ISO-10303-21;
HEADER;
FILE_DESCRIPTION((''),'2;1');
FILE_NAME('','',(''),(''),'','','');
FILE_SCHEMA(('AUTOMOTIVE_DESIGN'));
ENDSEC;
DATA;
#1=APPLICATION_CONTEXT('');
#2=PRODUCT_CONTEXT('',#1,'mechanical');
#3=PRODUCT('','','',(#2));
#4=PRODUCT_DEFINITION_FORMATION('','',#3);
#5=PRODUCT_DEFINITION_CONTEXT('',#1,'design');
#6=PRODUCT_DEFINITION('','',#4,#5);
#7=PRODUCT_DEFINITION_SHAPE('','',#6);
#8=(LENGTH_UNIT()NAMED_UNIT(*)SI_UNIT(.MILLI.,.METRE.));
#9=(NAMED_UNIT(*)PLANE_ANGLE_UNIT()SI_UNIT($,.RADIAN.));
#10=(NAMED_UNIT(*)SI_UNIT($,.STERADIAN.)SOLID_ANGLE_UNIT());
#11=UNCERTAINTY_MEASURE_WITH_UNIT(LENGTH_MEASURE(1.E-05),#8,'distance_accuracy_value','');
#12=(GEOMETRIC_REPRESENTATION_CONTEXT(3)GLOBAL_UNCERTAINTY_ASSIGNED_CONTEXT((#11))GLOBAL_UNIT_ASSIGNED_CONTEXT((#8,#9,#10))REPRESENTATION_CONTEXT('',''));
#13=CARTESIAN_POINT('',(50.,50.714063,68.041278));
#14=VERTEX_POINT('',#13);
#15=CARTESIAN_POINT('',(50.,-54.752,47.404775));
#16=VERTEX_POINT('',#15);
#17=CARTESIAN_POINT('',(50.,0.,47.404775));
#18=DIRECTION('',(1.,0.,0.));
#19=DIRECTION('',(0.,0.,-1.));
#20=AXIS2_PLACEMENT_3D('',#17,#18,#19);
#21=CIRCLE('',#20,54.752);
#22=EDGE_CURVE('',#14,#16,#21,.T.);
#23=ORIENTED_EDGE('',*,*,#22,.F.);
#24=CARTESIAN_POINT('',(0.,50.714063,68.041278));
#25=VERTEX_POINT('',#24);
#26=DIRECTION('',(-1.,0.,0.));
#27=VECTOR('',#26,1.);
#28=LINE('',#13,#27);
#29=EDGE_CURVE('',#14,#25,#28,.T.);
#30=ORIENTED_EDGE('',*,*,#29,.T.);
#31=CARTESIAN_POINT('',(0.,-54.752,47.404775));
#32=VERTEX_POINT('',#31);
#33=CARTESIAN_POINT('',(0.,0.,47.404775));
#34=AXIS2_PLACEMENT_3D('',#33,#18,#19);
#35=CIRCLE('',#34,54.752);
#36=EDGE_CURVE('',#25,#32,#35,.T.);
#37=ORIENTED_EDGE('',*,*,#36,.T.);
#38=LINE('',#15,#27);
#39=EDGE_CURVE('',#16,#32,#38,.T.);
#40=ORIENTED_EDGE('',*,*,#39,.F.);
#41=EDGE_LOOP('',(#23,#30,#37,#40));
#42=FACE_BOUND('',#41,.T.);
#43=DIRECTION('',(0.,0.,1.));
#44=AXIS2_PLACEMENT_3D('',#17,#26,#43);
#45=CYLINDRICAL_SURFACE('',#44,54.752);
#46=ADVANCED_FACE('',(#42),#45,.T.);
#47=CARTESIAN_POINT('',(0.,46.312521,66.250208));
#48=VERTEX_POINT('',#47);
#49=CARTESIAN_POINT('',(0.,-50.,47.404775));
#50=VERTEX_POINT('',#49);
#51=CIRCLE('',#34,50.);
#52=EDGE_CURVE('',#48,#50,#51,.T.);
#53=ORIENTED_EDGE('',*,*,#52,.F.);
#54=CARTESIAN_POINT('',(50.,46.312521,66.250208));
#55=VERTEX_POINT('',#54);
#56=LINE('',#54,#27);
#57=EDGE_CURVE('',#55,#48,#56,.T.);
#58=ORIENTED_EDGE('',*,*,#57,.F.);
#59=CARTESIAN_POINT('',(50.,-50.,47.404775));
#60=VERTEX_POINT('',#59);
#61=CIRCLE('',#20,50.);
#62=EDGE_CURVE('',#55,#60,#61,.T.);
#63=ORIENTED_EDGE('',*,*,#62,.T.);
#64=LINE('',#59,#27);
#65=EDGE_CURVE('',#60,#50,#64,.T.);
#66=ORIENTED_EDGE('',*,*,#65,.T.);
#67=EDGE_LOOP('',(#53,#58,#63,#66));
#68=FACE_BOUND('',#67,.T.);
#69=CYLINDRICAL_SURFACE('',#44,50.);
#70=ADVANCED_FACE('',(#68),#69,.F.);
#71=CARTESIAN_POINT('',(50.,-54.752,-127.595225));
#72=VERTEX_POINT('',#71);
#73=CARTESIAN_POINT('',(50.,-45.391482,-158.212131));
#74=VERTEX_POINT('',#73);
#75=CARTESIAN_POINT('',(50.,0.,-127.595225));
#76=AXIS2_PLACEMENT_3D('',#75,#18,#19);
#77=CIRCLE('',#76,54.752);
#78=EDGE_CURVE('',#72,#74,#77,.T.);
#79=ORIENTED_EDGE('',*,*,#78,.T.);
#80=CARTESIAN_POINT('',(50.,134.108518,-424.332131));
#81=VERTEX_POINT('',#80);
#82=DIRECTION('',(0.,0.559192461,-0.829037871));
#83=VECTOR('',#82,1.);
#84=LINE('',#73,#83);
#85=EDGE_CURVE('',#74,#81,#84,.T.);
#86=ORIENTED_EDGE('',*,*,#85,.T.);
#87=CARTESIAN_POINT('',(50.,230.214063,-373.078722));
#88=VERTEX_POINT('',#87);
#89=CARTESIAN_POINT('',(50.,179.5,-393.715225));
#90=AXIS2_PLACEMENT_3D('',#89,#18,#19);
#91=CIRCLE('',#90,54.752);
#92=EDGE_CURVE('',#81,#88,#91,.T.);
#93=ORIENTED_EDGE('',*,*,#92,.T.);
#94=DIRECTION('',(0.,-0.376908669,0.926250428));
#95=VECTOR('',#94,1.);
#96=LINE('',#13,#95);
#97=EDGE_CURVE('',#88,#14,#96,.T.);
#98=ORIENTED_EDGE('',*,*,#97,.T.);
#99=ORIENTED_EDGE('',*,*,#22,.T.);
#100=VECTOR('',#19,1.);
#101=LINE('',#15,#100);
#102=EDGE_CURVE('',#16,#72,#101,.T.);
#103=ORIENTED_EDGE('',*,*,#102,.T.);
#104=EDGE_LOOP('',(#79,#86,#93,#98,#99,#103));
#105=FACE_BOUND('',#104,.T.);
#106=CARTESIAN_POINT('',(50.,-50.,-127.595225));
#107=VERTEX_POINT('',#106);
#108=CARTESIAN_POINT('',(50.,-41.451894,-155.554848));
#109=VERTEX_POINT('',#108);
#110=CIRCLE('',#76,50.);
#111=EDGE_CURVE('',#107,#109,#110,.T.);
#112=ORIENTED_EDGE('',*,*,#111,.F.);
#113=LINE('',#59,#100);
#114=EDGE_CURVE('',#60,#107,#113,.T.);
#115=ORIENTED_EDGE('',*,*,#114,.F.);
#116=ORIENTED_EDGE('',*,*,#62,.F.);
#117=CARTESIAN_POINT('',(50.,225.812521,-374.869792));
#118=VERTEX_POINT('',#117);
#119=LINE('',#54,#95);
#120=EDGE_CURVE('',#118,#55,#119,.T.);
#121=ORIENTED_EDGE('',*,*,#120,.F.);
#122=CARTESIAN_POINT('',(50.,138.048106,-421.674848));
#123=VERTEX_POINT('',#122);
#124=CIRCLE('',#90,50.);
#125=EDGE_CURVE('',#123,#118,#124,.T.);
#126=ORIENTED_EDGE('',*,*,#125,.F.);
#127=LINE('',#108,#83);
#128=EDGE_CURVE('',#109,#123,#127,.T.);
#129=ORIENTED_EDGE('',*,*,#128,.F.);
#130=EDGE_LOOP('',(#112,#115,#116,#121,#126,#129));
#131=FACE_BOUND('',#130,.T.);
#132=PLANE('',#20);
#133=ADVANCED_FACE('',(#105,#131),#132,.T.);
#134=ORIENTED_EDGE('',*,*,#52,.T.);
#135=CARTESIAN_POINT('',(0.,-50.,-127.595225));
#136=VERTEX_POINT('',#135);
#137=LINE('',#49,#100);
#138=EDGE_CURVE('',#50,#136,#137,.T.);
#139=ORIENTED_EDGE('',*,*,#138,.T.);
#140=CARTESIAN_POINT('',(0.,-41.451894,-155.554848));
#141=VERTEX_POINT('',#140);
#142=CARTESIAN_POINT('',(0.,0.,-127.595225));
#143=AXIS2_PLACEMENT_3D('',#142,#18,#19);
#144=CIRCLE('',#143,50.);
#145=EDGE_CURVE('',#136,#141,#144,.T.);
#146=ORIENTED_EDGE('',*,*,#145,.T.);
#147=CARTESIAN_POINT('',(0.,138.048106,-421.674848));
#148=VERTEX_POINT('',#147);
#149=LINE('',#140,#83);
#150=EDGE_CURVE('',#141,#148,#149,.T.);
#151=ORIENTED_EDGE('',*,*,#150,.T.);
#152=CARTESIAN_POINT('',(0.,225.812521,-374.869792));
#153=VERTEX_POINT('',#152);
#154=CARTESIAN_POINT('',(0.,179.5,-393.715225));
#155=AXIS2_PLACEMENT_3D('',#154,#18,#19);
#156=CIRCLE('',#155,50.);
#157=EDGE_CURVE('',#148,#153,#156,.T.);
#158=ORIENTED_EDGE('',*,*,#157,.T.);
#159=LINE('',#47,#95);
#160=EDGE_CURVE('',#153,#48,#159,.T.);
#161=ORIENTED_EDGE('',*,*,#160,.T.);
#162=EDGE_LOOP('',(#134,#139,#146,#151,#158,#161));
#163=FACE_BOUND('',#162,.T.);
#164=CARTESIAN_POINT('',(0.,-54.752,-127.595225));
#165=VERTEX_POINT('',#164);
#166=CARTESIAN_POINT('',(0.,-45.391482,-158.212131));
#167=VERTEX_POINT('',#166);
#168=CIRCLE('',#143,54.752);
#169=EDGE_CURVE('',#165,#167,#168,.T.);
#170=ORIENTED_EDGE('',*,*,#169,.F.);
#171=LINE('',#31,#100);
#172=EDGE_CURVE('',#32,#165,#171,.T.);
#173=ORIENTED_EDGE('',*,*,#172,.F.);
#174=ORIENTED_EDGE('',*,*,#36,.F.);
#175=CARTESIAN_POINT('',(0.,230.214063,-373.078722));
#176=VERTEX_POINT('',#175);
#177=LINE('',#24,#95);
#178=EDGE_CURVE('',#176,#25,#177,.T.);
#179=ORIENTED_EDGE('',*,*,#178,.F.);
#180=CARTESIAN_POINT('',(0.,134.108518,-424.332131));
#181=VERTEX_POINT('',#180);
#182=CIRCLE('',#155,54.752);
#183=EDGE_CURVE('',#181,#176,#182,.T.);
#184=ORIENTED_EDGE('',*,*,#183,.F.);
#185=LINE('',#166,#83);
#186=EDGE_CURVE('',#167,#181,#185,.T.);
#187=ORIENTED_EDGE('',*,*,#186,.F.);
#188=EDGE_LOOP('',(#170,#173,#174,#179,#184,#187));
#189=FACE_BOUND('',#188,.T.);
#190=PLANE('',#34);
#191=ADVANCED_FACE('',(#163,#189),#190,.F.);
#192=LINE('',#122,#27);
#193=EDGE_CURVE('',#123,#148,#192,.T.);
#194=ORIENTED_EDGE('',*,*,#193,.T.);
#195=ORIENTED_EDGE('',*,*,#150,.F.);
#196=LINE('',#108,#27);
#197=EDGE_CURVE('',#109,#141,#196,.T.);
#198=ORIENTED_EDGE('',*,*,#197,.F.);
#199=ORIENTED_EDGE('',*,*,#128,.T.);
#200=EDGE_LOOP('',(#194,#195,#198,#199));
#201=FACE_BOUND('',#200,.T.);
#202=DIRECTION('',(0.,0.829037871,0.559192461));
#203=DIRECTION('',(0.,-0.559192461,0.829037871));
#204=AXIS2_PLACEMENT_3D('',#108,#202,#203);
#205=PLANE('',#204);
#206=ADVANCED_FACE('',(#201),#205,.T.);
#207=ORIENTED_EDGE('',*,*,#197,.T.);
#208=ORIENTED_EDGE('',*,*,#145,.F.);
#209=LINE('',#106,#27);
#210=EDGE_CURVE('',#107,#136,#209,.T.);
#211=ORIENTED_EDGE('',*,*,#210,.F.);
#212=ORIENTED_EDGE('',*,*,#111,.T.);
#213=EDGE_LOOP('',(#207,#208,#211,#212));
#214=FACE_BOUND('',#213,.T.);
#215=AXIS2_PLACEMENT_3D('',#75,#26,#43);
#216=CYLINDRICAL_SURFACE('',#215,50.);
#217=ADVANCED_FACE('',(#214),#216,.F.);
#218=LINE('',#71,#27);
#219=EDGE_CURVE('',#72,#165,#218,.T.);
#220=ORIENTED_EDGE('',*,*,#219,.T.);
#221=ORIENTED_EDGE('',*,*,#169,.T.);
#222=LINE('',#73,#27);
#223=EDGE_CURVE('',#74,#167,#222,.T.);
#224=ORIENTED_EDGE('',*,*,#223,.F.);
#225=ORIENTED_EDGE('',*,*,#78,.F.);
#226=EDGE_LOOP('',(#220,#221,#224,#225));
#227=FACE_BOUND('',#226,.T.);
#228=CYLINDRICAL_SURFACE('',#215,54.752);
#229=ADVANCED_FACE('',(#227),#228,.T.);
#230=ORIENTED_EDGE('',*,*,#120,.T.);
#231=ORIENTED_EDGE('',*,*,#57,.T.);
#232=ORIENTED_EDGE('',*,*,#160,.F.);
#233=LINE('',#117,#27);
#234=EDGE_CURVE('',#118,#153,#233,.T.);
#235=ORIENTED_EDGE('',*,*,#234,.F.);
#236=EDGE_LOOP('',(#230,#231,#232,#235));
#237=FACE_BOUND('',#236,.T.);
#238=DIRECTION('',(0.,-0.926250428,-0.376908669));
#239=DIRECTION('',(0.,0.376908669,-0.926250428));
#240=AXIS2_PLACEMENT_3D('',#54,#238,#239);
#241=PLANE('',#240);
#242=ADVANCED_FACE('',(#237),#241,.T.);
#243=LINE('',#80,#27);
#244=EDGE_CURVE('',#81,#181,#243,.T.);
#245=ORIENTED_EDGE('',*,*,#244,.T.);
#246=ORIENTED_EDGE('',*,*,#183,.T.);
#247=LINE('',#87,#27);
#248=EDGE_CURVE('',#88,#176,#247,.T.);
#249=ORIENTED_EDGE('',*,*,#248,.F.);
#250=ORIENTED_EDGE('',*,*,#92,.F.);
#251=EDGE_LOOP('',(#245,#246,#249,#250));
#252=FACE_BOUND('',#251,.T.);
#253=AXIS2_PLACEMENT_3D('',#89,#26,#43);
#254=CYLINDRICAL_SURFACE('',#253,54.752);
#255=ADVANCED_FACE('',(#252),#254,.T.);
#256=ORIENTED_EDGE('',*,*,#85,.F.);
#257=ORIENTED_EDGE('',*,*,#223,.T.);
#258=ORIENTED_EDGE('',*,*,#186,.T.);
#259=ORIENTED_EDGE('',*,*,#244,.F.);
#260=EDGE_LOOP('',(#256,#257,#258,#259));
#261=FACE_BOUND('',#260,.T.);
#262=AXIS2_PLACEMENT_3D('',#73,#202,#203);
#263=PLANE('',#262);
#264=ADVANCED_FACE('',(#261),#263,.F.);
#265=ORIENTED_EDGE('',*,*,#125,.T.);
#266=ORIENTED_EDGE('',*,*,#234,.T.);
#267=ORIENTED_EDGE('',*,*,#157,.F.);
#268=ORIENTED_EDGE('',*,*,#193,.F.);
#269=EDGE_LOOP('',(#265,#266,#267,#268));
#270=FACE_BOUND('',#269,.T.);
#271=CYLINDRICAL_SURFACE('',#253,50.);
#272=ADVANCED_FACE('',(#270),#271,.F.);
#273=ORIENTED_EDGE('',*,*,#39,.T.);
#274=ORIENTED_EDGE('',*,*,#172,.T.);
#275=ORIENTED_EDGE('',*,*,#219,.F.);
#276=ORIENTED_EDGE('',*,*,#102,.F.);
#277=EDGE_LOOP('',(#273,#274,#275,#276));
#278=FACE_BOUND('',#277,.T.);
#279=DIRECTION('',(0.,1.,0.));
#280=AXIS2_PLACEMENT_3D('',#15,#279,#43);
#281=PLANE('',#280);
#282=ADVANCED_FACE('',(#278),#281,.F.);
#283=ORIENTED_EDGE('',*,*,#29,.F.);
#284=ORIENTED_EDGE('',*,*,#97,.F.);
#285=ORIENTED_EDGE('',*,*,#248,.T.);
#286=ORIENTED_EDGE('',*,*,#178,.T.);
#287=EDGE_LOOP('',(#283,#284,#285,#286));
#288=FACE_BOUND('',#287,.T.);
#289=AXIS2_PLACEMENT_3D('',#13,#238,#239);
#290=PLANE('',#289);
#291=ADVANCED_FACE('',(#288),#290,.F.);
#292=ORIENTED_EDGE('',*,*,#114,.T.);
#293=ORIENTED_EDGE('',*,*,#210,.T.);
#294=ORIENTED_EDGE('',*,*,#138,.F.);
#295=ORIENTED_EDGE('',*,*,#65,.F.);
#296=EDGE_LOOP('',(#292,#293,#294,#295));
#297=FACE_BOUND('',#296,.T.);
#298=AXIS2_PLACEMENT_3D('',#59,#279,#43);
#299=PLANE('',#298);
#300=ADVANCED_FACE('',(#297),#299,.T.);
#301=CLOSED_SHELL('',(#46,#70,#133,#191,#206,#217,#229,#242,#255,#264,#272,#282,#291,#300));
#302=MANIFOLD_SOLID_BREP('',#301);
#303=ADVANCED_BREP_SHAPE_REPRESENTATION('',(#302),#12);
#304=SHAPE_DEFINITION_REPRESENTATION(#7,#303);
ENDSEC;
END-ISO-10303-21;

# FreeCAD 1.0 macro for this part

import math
import FreeCAD as App
import Part
import Sketcher

V = App.Vector
Q = App.Units.Quantity

doc = App.newDocument("Part")
body = doc.addObject("PartDesign::Body", "Body")

# Sketch on YZ plane
sketch1 = body.newObject("Sketcher::SketchObject", "Sketch")
sketch1.AttachmentSupport = (doc.getObject("YZ_Plane"), [""])
sketch1.MapMode = "FlatFace"
sketch1.addGeometry([
    Part.LineSegment(V(230, -373, 0), V(51, 68, 0)),  # 0
    Part.ArcOfCircle(Part.Circle(V(0, 47, 0), V(0, 0, 1), 55), math.radians(22), math.radians(180)),  # 1
    Part.LineSegment(V(-55, 47, 0), V(-55, -128, 0)),  # 2
    Part.ArcOfCircle(Part.Circle(V(0, -128, 0), V(0, 0, 1), 55), math.radians(180), math.radians(214)),  # 3
    Part.LineSegment(V(-45, -158, 0), V(134, -424, 0)),  # 4
    Part.ArcOfCircle(Part.Circle(V(180, -394, 0), V(0, 0, 1), 55), math.radians(-146), math.radians(22)),  # 5
    Part.LineSegment(V(46, 66, 0), V(226, -375, 0)),  # 6
    Part.ArcOfCircle(Part.Circle(V(180, -394, 0), V(0, 0, 1), 50), math.radians(-146), math.radians(22)),  # 7
    Part.LineSegment(V(138, -422, 0), V(-41, -156, 0)),  # 8
    Part.ArcOfCircle(Part.Circle(V(0, -128, 0), V(0, 0, 1), 50), math.radians(-180), math.radians(-146)),  # 9
    Part.LineSegment(V(-50, -128, 0), V(-50, 47, 0)),  # 10
    Part.ArcOfCircle(Part.Circle(V(0, 47, 0), V(0, 0, 1), 50), math.radians(22), math.radians(180)),  # 11
], False)
sketch1.addConstraint([
    Sketcher.Constraint("Tangent", 0, 2, 1, 1),
    Sketcher.Constraint("Tangent", 1, 2, 2, 1),
    Sketcher.Constraint("Tangent", 2, 2, 3, 1),
    Sketcher.Constraint("Tangent", 3, 2, 4, 1),
    Sketcher.Constraint("Tangent", 4, 2, 5, 1),
    Sketcher.Constraint("Tangent", 5, 2, 0, 1),
    Sketcher.Constraint("Tangent", 6, 2, 7, 2),
    Sketcher.Constraint("Tangent", 7, 1, 8, 1),
    Sketcher.Constraint("Tangent", 8, 2, 9, 2),
    Sketcher.Constraint("Tangent", 9, 1, 10, 1),
    Sketcher.Constraint("Tangent", 10, 2, 11, 2),
    Sketcher.Constraint("Tangent", 11, 1, 6, 1),
    Sketcher.Constraint("Vertical", 2),
    Sketcher.Constraint("Vertical", 10),
    Sketcher.Constraint("Coincident", 7, 3, 5, 3),
    Sketcher.Constraint("Coincident", 9, 3, 3, 3),
    Sketcher.Constraint("Coincident", 11, 3, 1, 3),
    Sketcher.Constraint("Equal", 1, 3),
    Sketcher.Constraint("Equal", 3, 5),
    Sketcher.Constraint("Equal", 7, 9),
    Sketcher.Constraint("PointOnObject", 1, 3, -2),
    Sketcher.Constraint("Radius", 7, Q("50 mm")),
    Sketcher.Constraint("DistanceY", 2, 2, 2, 1, Q("175 mm")),
    Sketcher.Constraint("Radius", 1, Q("54.752 mm")),
    Sketcher.Constraint("DistanceX", -1, 1, 5, 3, Q("179.5 mm")),
    Sketcher.Constraint("DistanceY", 5, 3, 3, 3, Q("266.12 mm")),
    Sketcher.Constraint("DistanceY", -1, 1, 0, 2, Q("68.041278 mm")),
])
pad1 = body.newObject("PartDesign::Pad", "Pad")
pad1.Profile = sketch1
pad1.Length = 50

doc.recompute()
